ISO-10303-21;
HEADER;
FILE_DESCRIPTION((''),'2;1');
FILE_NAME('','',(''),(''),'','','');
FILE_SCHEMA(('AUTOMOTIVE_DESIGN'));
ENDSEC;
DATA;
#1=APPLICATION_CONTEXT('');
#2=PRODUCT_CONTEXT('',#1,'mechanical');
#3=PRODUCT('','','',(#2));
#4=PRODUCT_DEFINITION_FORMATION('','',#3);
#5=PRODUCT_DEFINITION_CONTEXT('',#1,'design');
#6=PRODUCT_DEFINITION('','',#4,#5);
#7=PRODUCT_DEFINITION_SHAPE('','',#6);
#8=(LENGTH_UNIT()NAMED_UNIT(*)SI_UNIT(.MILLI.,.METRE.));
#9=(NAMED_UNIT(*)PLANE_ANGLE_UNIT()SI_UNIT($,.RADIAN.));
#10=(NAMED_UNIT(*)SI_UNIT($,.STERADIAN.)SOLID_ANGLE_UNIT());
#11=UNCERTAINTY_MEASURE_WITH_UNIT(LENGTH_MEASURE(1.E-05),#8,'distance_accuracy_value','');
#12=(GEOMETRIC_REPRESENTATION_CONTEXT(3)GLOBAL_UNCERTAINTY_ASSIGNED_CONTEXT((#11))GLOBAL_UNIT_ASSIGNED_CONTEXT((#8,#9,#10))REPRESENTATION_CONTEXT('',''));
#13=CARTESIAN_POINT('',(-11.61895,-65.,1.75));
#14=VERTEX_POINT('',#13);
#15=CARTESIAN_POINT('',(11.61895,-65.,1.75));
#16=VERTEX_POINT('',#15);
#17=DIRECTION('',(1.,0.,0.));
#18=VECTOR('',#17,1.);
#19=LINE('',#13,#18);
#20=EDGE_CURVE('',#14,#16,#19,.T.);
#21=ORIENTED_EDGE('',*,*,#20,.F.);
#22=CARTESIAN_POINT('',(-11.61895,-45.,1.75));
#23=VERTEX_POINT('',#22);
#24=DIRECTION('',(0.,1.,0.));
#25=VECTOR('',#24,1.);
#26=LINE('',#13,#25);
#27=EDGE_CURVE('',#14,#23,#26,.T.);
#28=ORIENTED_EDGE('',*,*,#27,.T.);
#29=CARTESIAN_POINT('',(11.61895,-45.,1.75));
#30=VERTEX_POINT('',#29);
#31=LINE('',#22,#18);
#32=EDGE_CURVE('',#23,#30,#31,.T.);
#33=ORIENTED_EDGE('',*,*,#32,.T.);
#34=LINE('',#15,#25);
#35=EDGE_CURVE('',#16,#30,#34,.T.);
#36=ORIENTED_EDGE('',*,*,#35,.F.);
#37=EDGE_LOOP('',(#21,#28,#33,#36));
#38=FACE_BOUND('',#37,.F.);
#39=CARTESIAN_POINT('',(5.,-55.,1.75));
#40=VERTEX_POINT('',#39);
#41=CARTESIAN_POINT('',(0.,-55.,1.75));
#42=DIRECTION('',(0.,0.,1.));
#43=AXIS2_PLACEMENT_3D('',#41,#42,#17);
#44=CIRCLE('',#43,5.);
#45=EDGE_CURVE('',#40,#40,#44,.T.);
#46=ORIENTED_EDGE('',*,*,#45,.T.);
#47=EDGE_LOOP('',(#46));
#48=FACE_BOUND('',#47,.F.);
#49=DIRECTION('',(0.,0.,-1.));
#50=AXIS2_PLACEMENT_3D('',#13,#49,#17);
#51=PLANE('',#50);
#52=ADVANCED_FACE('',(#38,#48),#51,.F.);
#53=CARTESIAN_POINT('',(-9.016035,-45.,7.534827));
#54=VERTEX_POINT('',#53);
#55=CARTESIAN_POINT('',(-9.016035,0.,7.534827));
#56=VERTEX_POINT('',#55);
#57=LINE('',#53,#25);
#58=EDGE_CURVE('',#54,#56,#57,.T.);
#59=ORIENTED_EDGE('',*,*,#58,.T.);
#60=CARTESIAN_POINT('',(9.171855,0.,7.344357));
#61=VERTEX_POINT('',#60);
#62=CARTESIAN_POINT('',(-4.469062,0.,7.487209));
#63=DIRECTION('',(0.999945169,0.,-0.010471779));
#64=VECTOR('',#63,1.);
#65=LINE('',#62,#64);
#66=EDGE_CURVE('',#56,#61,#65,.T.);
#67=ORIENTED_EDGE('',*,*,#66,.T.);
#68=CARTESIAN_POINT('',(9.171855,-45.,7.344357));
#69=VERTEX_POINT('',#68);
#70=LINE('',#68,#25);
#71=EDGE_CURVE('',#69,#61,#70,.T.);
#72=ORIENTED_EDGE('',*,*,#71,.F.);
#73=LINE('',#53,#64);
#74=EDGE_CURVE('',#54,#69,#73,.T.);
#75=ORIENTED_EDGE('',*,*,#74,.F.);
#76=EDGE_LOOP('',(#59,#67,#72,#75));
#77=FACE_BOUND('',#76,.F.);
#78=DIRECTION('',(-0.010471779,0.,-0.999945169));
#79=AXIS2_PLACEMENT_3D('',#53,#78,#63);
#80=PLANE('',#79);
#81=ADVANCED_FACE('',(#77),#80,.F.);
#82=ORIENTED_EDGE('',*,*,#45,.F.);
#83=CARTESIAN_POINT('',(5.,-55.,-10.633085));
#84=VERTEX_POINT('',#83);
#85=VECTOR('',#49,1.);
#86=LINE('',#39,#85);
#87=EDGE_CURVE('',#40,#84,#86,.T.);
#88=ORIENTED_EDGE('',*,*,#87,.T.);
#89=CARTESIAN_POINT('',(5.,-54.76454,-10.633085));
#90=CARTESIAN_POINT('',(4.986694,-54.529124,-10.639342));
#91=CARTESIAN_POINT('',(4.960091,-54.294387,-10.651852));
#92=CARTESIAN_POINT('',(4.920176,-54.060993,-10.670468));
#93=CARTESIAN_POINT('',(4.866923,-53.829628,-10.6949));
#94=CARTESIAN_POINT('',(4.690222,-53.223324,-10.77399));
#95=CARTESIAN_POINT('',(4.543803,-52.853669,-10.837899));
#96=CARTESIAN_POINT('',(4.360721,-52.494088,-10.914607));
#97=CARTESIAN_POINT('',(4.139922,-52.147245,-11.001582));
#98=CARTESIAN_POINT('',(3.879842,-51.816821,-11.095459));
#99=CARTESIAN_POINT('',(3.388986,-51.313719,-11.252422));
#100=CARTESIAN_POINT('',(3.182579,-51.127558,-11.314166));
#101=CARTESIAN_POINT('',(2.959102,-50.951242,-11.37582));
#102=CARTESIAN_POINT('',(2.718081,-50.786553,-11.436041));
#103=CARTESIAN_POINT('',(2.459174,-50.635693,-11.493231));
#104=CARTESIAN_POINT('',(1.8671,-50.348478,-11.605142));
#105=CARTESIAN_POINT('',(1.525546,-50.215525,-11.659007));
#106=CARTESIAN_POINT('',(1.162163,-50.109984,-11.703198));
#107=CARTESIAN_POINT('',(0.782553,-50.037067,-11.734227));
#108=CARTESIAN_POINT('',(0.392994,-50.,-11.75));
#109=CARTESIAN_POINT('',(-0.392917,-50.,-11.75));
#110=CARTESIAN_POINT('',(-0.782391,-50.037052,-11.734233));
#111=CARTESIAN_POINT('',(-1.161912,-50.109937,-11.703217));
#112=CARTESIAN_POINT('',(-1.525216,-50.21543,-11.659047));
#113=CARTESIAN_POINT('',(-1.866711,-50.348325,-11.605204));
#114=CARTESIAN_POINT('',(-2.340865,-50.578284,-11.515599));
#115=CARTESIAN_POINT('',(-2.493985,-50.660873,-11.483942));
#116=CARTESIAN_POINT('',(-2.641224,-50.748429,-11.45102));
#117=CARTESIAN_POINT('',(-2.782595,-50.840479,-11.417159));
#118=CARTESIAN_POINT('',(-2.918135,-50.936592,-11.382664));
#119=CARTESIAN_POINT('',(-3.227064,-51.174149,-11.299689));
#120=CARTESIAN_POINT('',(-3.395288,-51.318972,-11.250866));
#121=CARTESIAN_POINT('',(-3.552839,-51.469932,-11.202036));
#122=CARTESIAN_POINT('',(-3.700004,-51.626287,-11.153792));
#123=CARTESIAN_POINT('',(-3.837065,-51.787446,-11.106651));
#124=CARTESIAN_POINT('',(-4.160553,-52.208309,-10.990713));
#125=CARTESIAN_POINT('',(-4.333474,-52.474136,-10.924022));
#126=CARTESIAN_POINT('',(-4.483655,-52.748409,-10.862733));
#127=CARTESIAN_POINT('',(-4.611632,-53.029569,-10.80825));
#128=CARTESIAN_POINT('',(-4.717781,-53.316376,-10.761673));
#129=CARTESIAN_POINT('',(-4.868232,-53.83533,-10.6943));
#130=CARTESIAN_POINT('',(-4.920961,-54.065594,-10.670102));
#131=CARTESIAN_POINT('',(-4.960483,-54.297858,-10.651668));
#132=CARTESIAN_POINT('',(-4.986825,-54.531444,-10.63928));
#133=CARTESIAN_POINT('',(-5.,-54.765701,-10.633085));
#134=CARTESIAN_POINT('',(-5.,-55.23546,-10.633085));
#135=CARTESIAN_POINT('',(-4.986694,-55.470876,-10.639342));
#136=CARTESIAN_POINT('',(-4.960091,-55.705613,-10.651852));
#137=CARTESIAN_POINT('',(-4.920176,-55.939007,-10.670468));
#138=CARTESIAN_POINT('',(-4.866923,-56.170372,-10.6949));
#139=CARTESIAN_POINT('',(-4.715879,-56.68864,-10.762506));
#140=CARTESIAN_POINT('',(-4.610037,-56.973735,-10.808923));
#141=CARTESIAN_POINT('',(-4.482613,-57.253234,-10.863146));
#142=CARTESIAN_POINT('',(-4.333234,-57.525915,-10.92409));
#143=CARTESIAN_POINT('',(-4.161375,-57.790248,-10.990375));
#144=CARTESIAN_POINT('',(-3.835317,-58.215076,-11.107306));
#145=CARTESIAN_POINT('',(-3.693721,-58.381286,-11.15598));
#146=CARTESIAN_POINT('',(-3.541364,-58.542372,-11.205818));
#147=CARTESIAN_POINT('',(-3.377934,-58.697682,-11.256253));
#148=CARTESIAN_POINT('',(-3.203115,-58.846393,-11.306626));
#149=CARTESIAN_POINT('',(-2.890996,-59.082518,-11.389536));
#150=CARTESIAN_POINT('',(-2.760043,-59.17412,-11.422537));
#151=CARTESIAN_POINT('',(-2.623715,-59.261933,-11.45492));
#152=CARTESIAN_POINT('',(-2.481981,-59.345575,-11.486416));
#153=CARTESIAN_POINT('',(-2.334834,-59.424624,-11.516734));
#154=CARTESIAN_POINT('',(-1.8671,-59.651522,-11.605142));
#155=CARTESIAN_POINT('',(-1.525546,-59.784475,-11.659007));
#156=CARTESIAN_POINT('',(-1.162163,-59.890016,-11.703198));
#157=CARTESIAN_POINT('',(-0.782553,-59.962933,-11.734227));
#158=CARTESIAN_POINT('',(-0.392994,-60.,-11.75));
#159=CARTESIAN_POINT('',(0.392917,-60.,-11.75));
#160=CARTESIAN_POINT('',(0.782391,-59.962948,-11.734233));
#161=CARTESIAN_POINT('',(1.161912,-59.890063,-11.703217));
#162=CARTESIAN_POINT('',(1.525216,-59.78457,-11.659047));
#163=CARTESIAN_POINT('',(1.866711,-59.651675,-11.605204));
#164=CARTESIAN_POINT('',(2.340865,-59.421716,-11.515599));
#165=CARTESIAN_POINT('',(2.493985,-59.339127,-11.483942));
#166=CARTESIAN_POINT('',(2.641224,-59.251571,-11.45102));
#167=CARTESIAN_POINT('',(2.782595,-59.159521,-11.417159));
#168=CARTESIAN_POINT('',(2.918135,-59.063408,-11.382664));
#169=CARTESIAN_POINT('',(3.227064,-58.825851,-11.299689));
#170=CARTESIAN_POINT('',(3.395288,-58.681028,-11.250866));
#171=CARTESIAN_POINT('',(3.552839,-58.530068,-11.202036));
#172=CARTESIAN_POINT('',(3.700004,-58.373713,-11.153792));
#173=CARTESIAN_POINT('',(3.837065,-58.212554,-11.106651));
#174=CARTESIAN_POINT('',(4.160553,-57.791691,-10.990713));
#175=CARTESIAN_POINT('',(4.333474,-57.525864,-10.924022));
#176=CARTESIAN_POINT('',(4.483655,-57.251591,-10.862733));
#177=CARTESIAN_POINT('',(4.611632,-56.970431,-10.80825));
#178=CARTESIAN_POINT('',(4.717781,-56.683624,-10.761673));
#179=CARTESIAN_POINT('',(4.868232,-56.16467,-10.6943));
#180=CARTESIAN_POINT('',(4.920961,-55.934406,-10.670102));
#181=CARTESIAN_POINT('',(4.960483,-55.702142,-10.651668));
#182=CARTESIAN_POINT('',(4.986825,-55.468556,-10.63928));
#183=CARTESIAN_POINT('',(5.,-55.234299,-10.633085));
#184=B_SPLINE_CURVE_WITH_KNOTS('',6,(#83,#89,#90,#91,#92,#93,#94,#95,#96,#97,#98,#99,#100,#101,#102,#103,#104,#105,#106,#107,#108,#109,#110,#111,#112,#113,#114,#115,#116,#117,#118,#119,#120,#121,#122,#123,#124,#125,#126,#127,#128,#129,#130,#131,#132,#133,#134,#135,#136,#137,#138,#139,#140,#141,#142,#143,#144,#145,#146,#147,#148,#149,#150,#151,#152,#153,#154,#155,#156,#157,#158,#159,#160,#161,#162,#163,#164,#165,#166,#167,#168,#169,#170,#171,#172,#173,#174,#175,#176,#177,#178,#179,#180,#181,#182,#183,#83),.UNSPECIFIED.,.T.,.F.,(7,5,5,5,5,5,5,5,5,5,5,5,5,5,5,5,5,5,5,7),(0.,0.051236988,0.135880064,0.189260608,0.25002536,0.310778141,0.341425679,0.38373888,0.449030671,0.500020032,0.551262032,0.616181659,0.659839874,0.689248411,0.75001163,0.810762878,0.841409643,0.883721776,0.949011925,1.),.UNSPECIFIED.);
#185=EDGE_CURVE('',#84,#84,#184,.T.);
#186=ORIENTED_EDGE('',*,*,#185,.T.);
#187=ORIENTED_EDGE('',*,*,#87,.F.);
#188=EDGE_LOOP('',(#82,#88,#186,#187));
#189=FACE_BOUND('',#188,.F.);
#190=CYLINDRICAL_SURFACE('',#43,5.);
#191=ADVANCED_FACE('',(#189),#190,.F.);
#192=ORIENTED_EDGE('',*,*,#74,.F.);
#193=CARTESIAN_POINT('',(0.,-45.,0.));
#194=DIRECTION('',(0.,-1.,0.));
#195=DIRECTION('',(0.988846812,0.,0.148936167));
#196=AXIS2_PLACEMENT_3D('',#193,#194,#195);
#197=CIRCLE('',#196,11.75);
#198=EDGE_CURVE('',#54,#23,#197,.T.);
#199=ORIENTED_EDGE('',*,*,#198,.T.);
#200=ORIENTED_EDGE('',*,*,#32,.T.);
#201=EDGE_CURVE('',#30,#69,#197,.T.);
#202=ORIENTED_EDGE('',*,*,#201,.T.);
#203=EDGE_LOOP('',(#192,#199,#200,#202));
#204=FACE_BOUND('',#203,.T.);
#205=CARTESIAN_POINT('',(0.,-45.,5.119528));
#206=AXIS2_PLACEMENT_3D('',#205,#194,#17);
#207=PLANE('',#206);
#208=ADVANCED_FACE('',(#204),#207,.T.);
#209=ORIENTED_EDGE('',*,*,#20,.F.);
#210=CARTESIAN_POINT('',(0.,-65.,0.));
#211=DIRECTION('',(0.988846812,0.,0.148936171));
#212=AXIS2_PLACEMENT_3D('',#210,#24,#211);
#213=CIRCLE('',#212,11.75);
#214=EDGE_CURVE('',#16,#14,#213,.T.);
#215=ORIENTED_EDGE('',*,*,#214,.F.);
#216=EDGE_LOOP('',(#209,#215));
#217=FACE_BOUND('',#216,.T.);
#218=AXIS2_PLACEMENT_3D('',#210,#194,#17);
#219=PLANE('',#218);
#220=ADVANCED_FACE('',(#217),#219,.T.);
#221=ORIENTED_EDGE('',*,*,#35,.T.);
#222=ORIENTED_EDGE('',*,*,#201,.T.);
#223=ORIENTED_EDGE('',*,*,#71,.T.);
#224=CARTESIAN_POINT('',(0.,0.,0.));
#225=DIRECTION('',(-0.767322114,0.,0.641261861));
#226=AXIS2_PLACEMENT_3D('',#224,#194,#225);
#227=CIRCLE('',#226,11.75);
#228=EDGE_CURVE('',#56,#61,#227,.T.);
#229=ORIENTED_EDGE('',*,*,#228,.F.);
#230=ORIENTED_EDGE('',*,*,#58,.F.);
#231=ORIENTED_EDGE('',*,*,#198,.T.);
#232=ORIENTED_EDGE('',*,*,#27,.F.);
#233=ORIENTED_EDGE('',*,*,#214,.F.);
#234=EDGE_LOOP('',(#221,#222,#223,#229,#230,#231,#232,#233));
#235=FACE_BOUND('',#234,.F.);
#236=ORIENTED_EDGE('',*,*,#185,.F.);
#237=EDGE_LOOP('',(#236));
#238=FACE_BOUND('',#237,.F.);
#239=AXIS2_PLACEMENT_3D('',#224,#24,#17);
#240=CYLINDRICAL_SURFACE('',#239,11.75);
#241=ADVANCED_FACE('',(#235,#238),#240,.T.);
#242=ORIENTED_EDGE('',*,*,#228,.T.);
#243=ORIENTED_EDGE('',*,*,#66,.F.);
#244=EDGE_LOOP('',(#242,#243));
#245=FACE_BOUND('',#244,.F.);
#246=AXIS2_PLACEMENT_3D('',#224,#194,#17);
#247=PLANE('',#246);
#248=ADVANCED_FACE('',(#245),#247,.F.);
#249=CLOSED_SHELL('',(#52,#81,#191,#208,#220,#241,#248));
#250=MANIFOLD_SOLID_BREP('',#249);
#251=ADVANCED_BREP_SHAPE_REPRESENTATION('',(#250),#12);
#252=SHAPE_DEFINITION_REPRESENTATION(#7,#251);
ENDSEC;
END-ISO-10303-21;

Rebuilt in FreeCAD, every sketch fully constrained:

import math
import FreeCAD as App
import Part
import Sketcher
from FreeCAD import Vector
Q = App.Units.Quantity

doc = App.newDocument("Part")
body = doc.addObject("PartDesign::Body", "Body")

# Sketch on XZ plane
sketch1 = body.newObject("Sketcher::SketchObject", "Sketch")
sketch1.AttachmentSupport = (doc.getObject("XZ_Plane"), [""])
sketch1.MapMode = "FlatFace"
sketch1.addGeometry(Part.Circle(Vector(0, 0, 0), Vector(0, 0, 1), 11.75), False)
sketch1.addConstraint(Sketcher.Constraint("Coincident", 0, 3, -1, 1))
sketch1.addConstraint(Sketcher.Constraint("Diameter", 0, Q("23.5 mm")))
pad1 = body.newObject("PartDesign::Pad", "Pad")
pad1.Profile = sketch1
pad1.Length = 65

# Sketch on XZ plane
sketch2 = body.newObject("Sketcher::SketchObject", "Sketch001")
sketch2.AttachmentSupport = (doc.getObject("XZ_Plane"), [""])
sketch2.MapMode = "FlatFace"
sketch2.AttachmentOffset = App.Placement(Vector(0, 0, 65), App.Rotation())
sketch2.addGeometry(Part.ArcOfCircle(Part.Circle(Vector(0, 0, 0), Vector(0, 0, 1), 11.75), math.radians(8.565281), math.radians(171.434719)), False)
sketch2.addGeometry(Part.LineSegment(Vector(-11.61895, 1.75, 0), Vector(11.61895, 1.75, 0)), False)
sketch2.addConstraint(Sketcher.Constraint("Coincident", 0, 1, 1, 2))
sketch2.addConstraint(Sketcher.Constraint("Coincident", 1, 1, 0, 2))
sketch2.addConstraint(Sketcher.Constraint("Horizontal", 1))
sketch2.addConstraint(Sketcher.Constraint("Coincident", 0, 3, -1, 1))
sketch2.addConstraint(Sketcher.Constraint("Radius", 0, Q("11.75 mm")))
sketch2.addConstraint(Sketcher.Constraint("DistanceY", -1, 1, 0, 1, Q("1.75 mm")))
pocket1 = body.newObject("PartDesign::Pocket", "Pocket")
pocket1.Profile = sketch2
pocket1.Length = 20

# Sketch on XY plane
sketch3 = body.newObject("Sketcher::SketchObject", "Sketch002")
sketch3.AttachmentSupport = (doc.getObject("XY_Plane"), [""])
sketch3.MapMode = "FlatFace"
sketch3.AttachmentOffset = App.Placement(Vector(0, 0, 1.75), App.Rotation())
sketch3.addGeometry(Part.Circle(Vector(0, -55, 0), Vector(0, 0, 1), 5), False)
sketch3.addConstraint(Sketcher.Constraint("PointOnObject", 0, 3, -2))
sketch3.addConstraint(Sketcher.Constraint("Diameter", 0, Q("10 mm")))
sketch3.addConstraint(Sketcher.Constraint("DistanceY", 0, 3, -1, 1, Q("55 mm")))
pocket2 = body.newObject("PartDesign::Pocket", "Pocket001")
pocket2.Profile = sketch3
pocket2.Type = "ThroughAll"

# Sketch on XZ plane
sketch4 = body.newObject("Sketcher::SketchObject", "Sketch003")
sketch4.AttachmentSupport = (doc.getObject("XZ_Plane"), [""])
sketch4.MapMode = "FlatFace"
sketch4.AttachmentOffset = App.Placement(Vector(0, 0, 45), App.Rotation())
sketch4.addGeometry(Part.LineSegment(Vector(-9.016035, 7.534827, 0), Vector(9.171855, 7.344357, 0)), False)
sketch4.addGeometry(Part.ArcOfCircle(Part.Circle(Vector(0, 0, 0), Vector(0, 0, 1), 11.75), math.radians(38.685978), math.radians(140.114023)), False)
sketch4.addConstraint(Sketcher.Constraint("Coincident", 0, 1, 1, 2))
sketch4.addConstraint(Sketcher.Constraint("Coincident", 1, 1, 0, 2))
sketch4.addConstraint(Sketcher.Constraint("Coincident", 1, 3, -1, 1))
sketch4.addConstraint(Sketcher.Constraint("Radius", 1, Q("11.75 mm")))
sketch4.addConstraint(Sketcher.Constraint("Angle", 0, Q("-0.6 deg")))
sketch4.addConstraint(Sketcher.Constraint("DistanceX", 0, 1, 1, 1, Q("18.18789 mm")))
pocket3 = body.newObject("PartDesign::Pocket", "Pocket002")
pocket3.Profile = sketch4
pocket3.Type = "ThroughAll"

doc.recompute()
